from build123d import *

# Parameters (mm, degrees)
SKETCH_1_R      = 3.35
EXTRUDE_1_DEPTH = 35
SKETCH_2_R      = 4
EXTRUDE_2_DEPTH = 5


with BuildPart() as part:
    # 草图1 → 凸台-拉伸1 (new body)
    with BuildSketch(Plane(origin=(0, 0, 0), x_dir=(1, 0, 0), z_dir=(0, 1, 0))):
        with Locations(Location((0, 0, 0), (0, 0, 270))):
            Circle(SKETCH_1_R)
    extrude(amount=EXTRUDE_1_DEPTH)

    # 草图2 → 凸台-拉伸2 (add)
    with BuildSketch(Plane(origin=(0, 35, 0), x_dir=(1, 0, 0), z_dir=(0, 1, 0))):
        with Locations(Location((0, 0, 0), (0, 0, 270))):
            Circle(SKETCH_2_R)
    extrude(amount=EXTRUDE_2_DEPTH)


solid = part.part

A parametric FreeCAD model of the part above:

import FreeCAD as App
import Part
import Sketcher
from FreeCAD import Vector

doc = App.newDocument("Part")
body = doc.addObject("PartDesign::Body", "Body")

sketch1 = doc.addObject("Sketcher::SketchObject", "Sketch")
body.addObject(sketch1)
sketch1.AttachmentSupport = (doc.XZ_Plane, [""])
sketch1.MapMode = "FlatFace"
sketch1.addGeometry(Part.Circle(Vector(0, 0, 0), Vector(0, 0, 1), 3.4), False)
sketch1.addConstraint([
    Sketcher.Constraint("Coincident", 0, 3, -1, 1),
    Sketcher.Constraint("Diameter", 0, 6.7),
])
pad1 = doc.addObject("PartDesign::Pad", "Pad")
body.addObject(pad1)
pad1.Profile = sketch1
pad1.Length = 35
pad1.Reversed = True

sketch2 = doc.addObject("Sketcher::SketchObject", "Sketch001")
body.addObject(sketch2)
sketch2.AttachmentSupport = (doc.XZ_Plane, [""])
sketch2.MapMode = "FlatFace"
sketch2.AttachmentOffset = App.Placement(Vector(0, 0, -35), App.Rotation())
sketch2.addGeometry(Part.Circle(Vector(0, 0, 0), Vector(0, 0, 1), 4), False)
sketch2.addConstraint([
    Sketcher.Constraint("Coincident", 0, 3, -1, 1),
    Sketcher.Constraint("Diameter", 0, 8.0),
])
pad2 = doc.addObject("PartDesign::Pad", "Pad001")
body.addObject(pad2)
pad2.Profile = sketch2
pad2.Length = 5
pad2.Reversed = True

doc.recompute()
